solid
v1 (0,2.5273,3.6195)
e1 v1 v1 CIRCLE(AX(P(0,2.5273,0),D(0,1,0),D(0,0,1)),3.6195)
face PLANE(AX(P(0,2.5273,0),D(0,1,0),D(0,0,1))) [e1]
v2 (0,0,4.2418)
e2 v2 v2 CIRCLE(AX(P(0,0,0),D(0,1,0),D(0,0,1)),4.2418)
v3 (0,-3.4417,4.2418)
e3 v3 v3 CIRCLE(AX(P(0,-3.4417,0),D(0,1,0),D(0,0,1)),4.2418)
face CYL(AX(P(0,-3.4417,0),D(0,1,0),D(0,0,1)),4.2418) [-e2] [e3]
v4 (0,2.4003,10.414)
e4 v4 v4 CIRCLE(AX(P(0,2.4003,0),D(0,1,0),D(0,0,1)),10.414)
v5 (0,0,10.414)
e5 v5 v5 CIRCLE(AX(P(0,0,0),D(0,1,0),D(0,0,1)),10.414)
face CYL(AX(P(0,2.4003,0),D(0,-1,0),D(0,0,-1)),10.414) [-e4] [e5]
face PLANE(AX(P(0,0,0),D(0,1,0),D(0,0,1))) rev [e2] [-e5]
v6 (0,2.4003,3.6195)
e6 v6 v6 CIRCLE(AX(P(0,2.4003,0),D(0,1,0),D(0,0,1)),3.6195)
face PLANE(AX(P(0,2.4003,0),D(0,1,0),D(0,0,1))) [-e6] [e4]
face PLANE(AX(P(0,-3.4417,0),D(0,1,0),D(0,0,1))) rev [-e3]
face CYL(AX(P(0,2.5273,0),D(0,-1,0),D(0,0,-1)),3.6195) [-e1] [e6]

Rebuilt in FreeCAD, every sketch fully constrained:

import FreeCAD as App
import Part
import Sketcher

V = App.Vector
Q = App.Units.Quantity

doc = App.newDocument("Part")
body = doc.addObject("PartDesign::Body", "Body")

# Sketch on XZ plane
sketch1 = body.newObject("Sketcher::SketchObject", "Sketch")
sketch1.AttachmentSupport = (doc.getObject("XZ_Plane"), [""])
sketch1.MapMode = "FlatFace"
sketch1.addGeometry(Part.Circle(V(0, 0, 0), V(0, 0, 1), 10), False)
sketch1.addConstraint([
    Sketcher.Constraint("Coincident", 0, 3, -1, 1),
    Sketcher.Constraint("Diameter", 0, Q("0.82 in")),
])
pad1 = body.newObject("PartDesign::Pad", "Pad")
pad1.Profile = sketch1
pad1.Length = Q("0.0945 in")
pad1.Reversed = True

# Sketch on XZ plane
sketch2 = body.newObject("Sketcher::SketchObject", "Sketch001")
sketch2.AttachmentSupport = (doc.getObject("XZ_Plane"), [""])
sketch2.MapMode = "FlatFace"
sketch2.AttachmentOffset = App.Placement(V(0, 0, -0.0945 * 25.4), App.Rotation())
sketch2.addGeometry(Part.Circle(V(0, 0, 0), V(0, 0, 1), 4.2), False)
sketch2.addConstraint([
    Sketcher.Constraint("Coincident", 0, 3, -1, 1),
    Sketcher.Constraint("Diameter", 0, Q("0.334 in")),
])
pad2 = body.newObject("PartDesign::Pad", "Pad001")
pad2.Profile = sketch2
pad2.Length = Q("0.23 in")

# Sketch on XZ plane
sketch3 = body.newObject("Sketcher::SketchObject", "Sketch002")
sketch3.AttachmentSupport = (doc.getObject("XZ_Plane"), [""])
sketch3.MapMode = "FlatFace"
sketch3.AttachmentOffset = App.Placement(V(0, 0, -0.0945 * 25.4), App.Rotation())
sketch3.addGeometry(Part.Circle(V(0, 0, 0), V(0, 0, 1), 3.6), False)
sketch3.addConstraint([
    Sketcher.Constraint("Coincident", 0, 3, -1, 1),
    Sketcher.Constraint("Diameter", 0, Q("0.285 in")),
])
pad3 = body.newObject("PartDesign::Pad", "Pad002")
pad3.Profile = sketch3
pad3.Length = Q("0.005 in")
pad3.Reversed = True

doc.recompute()
